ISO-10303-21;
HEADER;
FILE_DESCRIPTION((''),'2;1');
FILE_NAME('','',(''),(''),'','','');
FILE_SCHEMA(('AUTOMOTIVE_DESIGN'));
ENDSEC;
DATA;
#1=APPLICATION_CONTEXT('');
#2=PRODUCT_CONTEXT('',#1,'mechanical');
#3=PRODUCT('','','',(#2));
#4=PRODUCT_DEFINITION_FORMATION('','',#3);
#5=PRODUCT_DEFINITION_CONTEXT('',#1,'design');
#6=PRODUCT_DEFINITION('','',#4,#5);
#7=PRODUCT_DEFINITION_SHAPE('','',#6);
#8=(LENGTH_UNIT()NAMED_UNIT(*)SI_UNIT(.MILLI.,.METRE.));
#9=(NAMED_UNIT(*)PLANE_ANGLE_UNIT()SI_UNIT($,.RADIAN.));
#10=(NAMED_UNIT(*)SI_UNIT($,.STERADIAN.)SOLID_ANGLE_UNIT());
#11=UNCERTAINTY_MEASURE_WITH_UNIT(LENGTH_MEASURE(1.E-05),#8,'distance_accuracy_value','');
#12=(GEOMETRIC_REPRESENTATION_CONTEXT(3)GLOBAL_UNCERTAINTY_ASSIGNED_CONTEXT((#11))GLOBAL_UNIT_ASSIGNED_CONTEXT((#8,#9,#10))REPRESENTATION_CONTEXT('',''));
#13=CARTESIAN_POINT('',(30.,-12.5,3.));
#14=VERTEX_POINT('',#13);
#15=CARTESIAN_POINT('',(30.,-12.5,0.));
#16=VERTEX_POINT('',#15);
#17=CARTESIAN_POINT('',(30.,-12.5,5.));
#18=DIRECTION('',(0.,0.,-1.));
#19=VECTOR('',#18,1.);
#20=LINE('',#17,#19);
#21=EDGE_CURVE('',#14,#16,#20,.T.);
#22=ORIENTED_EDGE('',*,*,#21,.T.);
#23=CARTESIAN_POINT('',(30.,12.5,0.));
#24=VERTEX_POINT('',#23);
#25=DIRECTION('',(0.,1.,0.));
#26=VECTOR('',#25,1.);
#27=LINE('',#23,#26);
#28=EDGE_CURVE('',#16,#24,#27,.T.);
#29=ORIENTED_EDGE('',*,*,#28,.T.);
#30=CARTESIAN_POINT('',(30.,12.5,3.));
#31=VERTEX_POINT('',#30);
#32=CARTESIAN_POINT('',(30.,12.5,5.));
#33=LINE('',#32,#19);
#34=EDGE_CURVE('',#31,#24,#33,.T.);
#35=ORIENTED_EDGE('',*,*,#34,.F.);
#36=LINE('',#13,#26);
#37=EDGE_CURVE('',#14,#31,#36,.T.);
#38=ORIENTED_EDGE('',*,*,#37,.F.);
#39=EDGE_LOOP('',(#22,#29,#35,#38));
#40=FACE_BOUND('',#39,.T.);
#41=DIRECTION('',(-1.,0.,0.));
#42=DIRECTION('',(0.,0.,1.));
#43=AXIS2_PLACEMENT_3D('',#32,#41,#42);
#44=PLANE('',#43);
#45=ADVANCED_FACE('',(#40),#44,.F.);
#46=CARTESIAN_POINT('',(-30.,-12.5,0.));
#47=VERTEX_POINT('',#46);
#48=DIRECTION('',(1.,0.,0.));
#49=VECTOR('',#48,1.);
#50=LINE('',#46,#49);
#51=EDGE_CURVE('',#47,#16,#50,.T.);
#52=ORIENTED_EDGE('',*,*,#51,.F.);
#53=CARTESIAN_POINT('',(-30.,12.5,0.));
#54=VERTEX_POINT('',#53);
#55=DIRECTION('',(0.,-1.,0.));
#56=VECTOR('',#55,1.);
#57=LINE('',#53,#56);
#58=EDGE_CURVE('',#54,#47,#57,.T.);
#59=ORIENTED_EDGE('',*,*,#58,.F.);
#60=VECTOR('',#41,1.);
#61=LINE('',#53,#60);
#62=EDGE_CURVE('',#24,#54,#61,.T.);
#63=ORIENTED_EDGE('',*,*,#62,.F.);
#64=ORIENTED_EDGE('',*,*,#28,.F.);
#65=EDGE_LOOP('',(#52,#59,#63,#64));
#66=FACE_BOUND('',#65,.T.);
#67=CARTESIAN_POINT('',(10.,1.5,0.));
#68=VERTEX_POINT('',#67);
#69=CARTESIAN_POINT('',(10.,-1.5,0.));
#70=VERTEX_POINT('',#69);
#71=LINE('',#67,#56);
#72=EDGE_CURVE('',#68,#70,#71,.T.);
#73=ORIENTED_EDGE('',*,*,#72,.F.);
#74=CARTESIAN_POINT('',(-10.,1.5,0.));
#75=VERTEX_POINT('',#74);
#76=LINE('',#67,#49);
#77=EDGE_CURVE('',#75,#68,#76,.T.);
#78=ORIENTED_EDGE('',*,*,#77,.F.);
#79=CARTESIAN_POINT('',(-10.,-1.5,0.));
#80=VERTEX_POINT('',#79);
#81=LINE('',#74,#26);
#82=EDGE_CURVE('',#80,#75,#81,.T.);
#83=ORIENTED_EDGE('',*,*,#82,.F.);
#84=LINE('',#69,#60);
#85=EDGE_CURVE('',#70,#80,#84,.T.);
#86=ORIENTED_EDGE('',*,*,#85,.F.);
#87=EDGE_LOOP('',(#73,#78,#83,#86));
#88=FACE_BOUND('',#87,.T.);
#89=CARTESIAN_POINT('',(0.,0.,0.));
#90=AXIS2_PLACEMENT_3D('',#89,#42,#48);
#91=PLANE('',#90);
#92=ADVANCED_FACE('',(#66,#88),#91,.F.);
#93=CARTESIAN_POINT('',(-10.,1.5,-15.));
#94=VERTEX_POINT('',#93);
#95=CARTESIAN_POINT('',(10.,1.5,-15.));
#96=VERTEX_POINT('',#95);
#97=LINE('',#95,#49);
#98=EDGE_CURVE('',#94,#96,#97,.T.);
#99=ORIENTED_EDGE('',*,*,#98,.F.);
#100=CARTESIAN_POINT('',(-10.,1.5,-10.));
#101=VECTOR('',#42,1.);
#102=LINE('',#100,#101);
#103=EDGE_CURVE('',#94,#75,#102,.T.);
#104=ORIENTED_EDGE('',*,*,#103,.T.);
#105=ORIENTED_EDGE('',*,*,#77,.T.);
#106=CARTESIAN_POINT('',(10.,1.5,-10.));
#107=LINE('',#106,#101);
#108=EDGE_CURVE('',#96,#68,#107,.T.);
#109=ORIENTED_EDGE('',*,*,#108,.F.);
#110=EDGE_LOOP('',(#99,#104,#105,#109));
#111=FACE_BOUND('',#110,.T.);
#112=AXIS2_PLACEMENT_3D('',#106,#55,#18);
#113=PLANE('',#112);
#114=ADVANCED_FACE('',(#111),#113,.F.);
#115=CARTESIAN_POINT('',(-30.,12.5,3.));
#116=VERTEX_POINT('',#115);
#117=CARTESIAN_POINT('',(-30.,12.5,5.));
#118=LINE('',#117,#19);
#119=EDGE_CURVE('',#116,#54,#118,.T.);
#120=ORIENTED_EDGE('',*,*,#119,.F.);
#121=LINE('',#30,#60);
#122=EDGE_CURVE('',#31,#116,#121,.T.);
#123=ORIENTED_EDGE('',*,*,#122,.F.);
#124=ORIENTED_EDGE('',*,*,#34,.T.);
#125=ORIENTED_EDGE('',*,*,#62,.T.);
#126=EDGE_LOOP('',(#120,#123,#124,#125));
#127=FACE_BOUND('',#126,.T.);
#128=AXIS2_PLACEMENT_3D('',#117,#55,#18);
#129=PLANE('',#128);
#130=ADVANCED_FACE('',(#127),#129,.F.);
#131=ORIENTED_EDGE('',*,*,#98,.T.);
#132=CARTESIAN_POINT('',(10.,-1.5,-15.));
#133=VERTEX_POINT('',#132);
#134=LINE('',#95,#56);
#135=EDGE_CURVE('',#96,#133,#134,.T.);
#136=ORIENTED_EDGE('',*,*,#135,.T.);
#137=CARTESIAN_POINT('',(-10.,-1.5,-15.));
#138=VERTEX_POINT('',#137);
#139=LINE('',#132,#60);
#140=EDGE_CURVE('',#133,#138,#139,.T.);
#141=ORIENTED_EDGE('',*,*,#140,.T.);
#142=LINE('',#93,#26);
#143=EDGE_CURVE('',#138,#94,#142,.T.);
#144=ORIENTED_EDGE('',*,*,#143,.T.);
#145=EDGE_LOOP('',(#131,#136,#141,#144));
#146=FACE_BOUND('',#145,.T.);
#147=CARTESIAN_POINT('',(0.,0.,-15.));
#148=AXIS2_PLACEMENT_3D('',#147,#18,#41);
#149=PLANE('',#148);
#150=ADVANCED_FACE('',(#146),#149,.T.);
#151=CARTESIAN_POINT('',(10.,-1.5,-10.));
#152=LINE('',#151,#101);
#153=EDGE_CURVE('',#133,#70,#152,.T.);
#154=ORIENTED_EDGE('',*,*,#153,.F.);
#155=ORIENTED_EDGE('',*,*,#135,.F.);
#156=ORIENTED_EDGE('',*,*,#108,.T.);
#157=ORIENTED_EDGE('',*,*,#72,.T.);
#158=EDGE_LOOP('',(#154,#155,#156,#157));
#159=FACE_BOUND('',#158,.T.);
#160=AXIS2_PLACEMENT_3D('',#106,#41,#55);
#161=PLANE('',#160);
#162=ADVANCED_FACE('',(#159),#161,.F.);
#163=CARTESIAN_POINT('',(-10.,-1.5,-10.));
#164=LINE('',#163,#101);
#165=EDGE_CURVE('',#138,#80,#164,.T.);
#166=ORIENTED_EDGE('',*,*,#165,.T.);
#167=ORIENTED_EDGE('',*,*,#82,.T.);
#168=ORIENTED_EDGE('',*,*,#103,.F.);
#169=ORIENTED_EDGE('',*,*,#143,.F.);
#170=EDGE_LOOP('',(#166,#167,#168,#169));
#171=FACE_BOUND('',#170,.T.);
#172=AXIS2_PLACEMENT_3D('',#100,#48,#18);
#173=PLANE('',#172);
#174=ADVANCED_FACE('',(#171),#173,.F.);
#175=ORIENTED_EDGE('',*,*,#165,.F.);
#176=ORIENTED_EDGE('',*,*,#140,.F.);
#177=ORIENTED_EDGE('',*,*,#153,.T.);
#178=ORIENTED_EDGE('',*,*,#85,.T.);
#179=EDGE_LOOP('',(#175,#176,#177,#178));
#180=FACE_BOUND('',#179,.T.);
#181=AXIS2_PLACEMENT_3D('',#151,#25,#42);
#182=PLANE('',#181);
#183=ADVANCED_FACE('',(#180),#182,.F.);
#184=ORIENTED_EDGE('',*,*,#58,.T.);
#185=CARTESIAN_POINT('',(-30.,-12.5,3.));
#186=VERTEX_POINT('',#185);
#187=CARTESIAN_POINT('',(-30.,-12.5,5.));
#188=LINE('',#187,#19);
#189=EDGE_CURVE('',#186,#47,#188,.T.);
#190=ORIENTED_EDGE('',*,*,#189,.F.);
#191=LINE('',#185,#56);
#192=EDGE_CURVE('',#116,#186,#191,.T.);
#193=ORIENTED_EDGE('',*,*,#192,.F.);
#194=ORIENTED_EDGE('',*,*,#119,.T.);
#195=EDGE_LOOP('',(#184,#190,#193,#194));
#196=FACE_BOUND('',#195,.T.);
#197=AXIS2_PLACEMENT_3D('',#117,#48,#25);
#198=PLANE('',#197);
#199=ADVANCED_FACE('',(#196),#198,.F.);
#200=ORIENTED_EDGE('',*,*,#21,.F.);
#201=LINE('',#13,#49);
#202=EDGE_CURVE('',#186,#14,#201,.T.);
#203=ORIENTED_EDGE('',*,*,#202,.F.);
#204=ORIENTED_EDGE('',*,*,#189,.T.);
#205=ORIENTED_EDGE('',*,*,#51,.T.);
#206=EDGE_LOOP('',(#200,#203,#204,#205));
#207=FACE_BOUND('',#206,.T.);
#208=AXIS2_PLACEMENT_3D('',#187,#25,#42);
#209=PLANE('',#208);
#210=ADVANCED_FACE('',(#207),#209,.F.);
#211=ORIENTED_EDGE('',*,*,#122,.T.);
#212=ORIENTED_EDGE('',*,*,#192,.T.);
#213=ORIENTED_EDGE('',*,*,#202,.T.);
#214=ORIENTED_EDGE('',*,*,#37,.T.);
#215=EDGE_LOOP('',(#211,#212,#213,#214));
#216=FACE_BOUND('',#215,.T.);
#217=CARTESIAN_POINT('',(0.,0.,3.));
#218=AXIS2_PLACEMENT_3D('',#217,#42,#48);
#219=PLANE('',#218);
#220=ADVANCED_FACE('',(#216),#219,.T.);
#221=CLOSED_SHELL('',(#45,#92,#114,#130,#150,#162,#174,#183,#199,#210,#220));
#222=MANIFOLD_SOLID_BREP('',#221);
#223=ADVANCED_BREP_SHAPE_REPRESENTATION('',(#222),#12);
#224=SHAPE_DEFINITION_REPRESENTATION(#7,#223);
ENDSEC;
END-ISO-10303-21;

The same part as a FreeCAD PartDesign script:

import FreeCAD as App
import Part
import Sketcher
from FreeCAD import Vector


def add_polygon(sketch, points):
    """Adds a closed chain of lines whose ends are joined by coincident constraints."""
    first, n = sketch.GeometryCount, len(points)
    for a, b in zip(points, points[1:] + points[:1]):
        sketch.addGeometry(Part.LineSegment(App.Vector(*a, 0), App.Vector(*b, 0)), False)
    for i in range(n):
        sketch.addConstraint(Sketcher.Constraint("Coincident", first + i, 2, first + (i + 1) % n, 1))

doc = App.newDocument("Part")
body = doc.addObject("PartDesign::Body", "Body")

# Sketch on XY plane
sketch1 = body.newObject("Sketcher::SketchObject", "Sketch")
sketch1.AttachmentSupport = (doc.getObject("XY_Plane"), [""])
sketch1.MapMode = "FlatFace"
add_polygon(sketch1, [(-30, 12.5), (-30, -12.5), (30, -12.5), (30, 12.5)])  # lines 0-3
sketch1.addConstraint(Sketcher.Constraint("Vertical", 0))
sketch1.addConstraint(Sketcher.Constraint("Horizontal", 1))
sketch1.addConstraint(Sketcher.Constraint("Vertical", 2))
sketch1.addConstraint(Sketcher.Constraint("Horizontal", 3))
sketch1.addConstraint(Sketcher.Constraint("Symmetric", 0, 2, 2, 2, -1, 1))
sketch1.addConstraint(Sketcher.Constraint("DistanceX", 1, 1, 1, 2, 60.0))
sketch1.addConstraint(Sketcher.Constraint("DistanceY", 0, 2, 0, 1, 25.0))
pad1 = body.newObject("PartDesign::Pad", "Pad")
pad1.Profile = sketch1
pad1.Length = 5

# Sketch on XY plane
sketch2 = body.newObject("Sketcher::SketchObject", "Sketch001")
sketch2.AttachmentSupport = (doc.getObject("XY_Plane"), [""])
sketch2.MapMode = "FlatFace"
add_polygon(sketch2, [(10, 1.5), (10, -1.5), (-10, -1.5), (-10, 1.5)])  # lines 0-3
sketch2.addConstraint(Sketcher.Constraint("Vertical", 0))
sketch2.addConstraint(Sketcher.Constraint("Horizontal", 1))
sketch2.addConstraint(Sketcher.Constraint("Vertical", 2))
sketch2.addConstraint(Sketcher.Constraint("Horizontal", 3))
sketch2.addConstraint(Sketcher.Constraint("Symmetric", 0, 2, 2, 2, -1, 1))
sketch2.addConstraint(Sketcher.Constraint("DistanceX", 1, 2, 1, 1, 20.0))
sketch2.addConstraint(Sketcher.Constraint("DistanceY", 0, 2, 0, 1, 3.0))
pad2 = body.newObject("PartDesign::Pad", "Pad001")
pad2.Profile = sketch2
pad2.Length = 10
pad2.Reversed = True

# Sketch on XY plane
sketch3 = body.newObject("Sketcher::SketchObject", "Sketch002")
sketch3.AttachmentSupport = (doc.getObject("XY_Plane"), [""])
sketch3.MapMode = "FlatFace"
sketch3.AttachmentOffset = App.Placement(Vector(0, 0, 5), App.Rotation())
add_polygon(sketch3, [(-30, 12.5), (-30, -12.5), (30, -12.5), (30, 12.5)])  # lines 0-3
sketch3.addConstraint(Sketcher.Constraint("Vertical", 0))
sketch3.addConstraint(Sketcher.Constraint("Horizontal", 1))
sketch3.addConstraint(Sketcher.Constraint("Vertical", 2))
sketch3.addConstraint(Sketcher.Constraint("Horizontal", 3))
sketch3.addConstraint(Sketcher.Constraint("Symmetric", 0, 2, 2, 2, -1, 1))
sketch3.addConstraint(Sketcher.Constraint("DistanceX", 1, 1, 1, 2, 60.0))
sketch3.addConstraint(Sketcher.Constraint("DistanceY", 0, 2, 0, 1, 25.0))
pocket1 = body.newObject("PartDesign::Pocket", "Pocket")
pocket1.Profile = sketch3
pocket1.Length = 2

# Sketch on XY plane
sketch4 = body.newObject("Sketcher::SketchObject", "Sketch003")
sketch4.AttachmentSupport = (doc.getObject("XY_Plane"), [""])
sketch4.MapMode = "FlatFace"
sketch4.AttachmentOffset = App.Placement(Vector(0, 0, -10), App.Rotation())
add_polygon(sketch4, [(10, 1.5), (10, -1.5), (-10, -1.5), (-10, 1.5)])  # lines 0-3
sketch4.addConstraint(Sketcher.Constraint("Vertical", 0))
sketch4.addConstraint(Sketcher.Constraint("Horizontal", 1))
sketch4.addConstraint(Sketcher.Constraint("Vertical", 2))
sketch4.addConstraint(Sketcher.Constraint("Horizontal", 3))
sketch4.addConstraint(Sketcher.Constraint("Symmetric", 0, 2, 2, 2, -1, 1))
sketch4.addConstraint(Sketcher.Constraint("DistanceX", 1, 2, 1, 1, 20.0))
sketch4.addConstraint(Sketcher.Constraint("DistanceY", 0, 2, 0, 1, 3.0))
pad3 = body.newObject("PartDesign::Pad", "Pad002")
pad3.Profile = sketch4
pad3.Length = 5
pad3.Reversed = True

doc.recompute()
